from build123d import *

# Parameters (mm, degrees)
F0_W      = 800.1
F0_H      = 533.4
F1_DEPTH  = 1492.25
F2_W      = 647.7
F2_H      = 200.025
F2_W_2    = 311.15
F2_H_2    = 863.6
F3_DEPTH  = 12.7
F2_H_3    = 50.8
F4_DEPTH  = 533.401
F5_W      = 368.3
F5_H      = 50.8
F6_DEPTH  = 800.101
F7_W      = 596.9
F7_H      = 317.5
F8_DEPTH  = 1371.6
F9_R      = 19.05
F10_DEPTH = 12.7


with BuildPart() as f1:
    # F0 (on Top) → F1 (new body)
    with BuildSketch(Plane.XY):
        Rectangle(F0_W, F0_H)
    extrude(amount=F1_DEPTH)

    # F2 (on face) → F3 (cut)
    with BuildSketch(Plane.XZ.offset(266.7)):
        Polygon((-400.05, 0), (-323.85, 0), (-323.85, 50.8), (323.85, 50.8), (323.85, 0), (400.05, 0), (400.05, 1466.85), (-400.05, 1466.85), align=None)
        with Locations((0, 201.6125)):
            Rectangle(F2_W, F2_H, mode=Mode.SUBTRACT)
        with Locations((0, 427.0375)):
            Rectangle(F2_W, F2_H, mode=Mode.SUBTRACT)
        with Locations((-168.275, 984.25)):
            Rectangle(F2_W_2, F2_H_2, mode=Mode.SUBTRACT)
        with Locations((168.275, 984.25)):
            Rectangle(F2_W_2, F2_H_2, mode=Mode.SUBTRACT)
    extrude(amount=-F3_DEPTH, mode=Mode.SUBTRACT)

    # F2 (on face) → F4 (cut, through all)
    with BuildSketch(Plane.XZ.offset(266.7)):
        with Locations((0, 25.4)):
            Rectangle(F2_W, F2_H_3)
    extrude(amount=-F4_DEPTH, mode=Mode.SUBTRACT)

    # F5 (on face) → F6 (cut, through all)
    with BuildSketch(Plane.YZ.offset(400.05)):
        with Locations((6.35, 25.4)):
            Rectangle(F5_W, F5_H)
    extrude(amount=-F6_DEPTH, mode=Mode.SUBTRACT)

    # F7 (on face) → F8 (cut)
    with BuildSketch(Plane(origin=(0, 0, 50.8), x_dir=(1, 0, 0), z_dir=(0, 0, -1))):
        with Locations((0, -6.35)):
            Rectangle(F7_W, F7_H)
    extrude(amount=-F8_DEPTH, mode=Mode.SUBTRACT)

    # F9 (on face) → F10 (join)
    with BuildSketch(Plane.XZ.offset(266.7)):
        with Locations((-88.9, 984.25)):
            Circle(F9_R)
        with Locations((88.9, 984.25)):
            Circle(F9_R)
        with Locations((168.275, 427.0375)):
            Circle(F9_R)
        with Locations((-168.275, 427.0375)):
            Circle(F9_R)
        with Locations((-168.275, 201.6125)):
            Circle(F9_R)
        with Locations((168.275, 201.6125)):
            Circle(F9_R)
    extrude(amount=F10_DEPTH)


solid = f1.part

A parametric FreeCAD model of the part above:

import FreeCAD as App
import Part
import Sketcher
from FreeCAD import Vector
Q = App.Units.Quantity

doc = App.newDocument("Part")
params = doc.addObject("Spreadsheet::Sheet", "Params")
for row, (alias, value) in enumerate([
    ("sketch1_height", "21 in"),
    ("sketch1_width", "31.5 in"),
    ("pad1_length", "58.75 in"),
    ("sketch2_width", "3 in"),
    ("sketch2_height", "2 in"),
    ("sketch2_height2", "34 in"),
    ("sketch2_width2", "25.5 in"),
    ("sketch2_height3", "57.75 in"),
    ("pocket1_length", "0.5 in"),
    ("sketch3_height", "2 in"),
    ("sketch3_width", "25.5 in"),
    ("sketch4_height", "2 in"),
    ("sketch4_width", "14.5 in"),
    ("sketch5_width", "23.5 in"),
    ("sketch5_height", "12.5 in"),
    ("pocket4_length", "54 in"),
    ("sketch6_diameter", "1.5 in"),
    ("pad2_length", "0.5 in"),
], start=1):
    params.set(f"A{row}", alias)
    params.set(f"B{row}", "=" + value)
    params.setAlias(f"B{row}", alias)

body = doc.addObject("PartDesign::Body", "Body")

# Sketch on XY plane
sketch1 = body.newObject("Sketcher::SketchObject", "Sketch")
sketch1.AttachmentSupport = (doc.getObject("XY_Plane"), [""])
sketch1.MapMode = "FlatFace"
sketch1.addGeometry([
    Part.LineSegment(Vector(-400.05, 266.7, 0), Vector(-400.05, -266.7, 0)),
    Part.LineSegment(Vector(-400.05, -266.7, 0), Vector(400.05, -266.7, 0)),
    Part.LineSegment(Vector(400.05, -266.7, 0), Vector(400.05, 266.7, 0)),
    Part.LineSegment(Vector(400.05, 266.7, 0), Vector(-400.05, 266.7, 0)),
], False)
sketch1.addConstraint([
    Sketcher.Constraint("Coincident", 0, 2, 1, 1),
    Sketcher.Constraint("Coincident", 1, 2, 2, 1),
    Sketcher.Constraint("Coincident", 2, 2, 3, 1),
    Sketcher.Constraint("Coincident", 3, 2, 0, 1),
    Sketcher.Constraint("Vertical", 0),
    Sketcher.Constraint("Horizontal", 1),
    Sketcher.Constraint("Vertical", 2),
    Sketcher.Constraint("Horizontal", 3),
    Sketcher.Constraint("Symmetric", 0, 2, 2, 2, -1, 1),
    Sketcher.Constraint("DistanceY", 0, 2, 0, 1, Q("21 in")),
    Sketcher.Constraint("DistanceX", 1, 1, 1, 2, Q("31.5 in")),
])
sketch1.setExpression("Constraints[9]", "Params.sketch1_height")
sketch1.setExpression("Constraints[10]", "Params.sketch1_width")
pad1 = body.newObject("PartDesign::Pad", "Pad")
pad1.Profile = sketch1
pad1.setExpression("Length", "Params.pad1_length")

# Sketch on XZ plane
sketch2 = body.newObject("Sketcher::SketchObject", "Sketch001")
sketch2.AttachmentSupport = (doc.getObject("XZ_Plane"), [""])
sketch2.MapMode = "FlatFace"
sketch2.AttachmentOffset = App.Placement(Vector(0, 0, 10.5 * 25.4), App.Rotation())
sketch2.addGeometry([
    Part.LineSegment(Vector(-400.05, 0, 0), Vector(-323.85, 0, 0)),  # 0
    Part.LineSegment(Vector(-323.85, 0, 0), Vector(-323.85, 50.8, 0)),  # 1
    Part.LineSegment(Vector(-323.85, 50.8, 0), Vector(323.85, 50.8, 0)),  # 2
    Part.LineSegment(Vector(323.85, 50.8, 0), Vector(323.85, 0, 0)),  # 3
    Part.LineSegment(Vector(323.85, 0, 0), Vector(400.05, 0, 0)),  # 4
    Part.LineSegment(Vector(400.05, 0, 0), Vector(400.05, 1466.85, 0)),  # 5
    Part.LineSegment(Vector(400.05, 1466.85, 0), Vector(-400.05, 1466.85, 0)),  # 6
    Part.LineSegment(Vector(-400.05, 1466.85, 0), Vector(-400.05, 0, 0)),  # 7
    Part.LineSegment(Vector(323.85, 101.6, 0), Vector(-323.85, 101.6, 0)),  # 8
    Part.LineSegment(Vector(-323.85, 101.6, 0), Vector(-323.85, 301.625, 0)),  # 9
    Part.LineSegment(Vector(-323.85, 301.625, 0), Vector(323.85, 301.625, 0)),  # 10
    Part.LineSegment(Vector(323.85, 301.625, 0), Vector(323.85, 101.6, 0)),  # 11
    Part.LineSegment(Vector(323.85, 327.025, 0), Vector(-323.85, 327.025, 0)),  # 12
    Part.LineSegment(Vector(-323.85, 327.025, 0), Vector(-323.85, 527.05, 0)),  # 13
    Part.LineSegment(Vector(-323.85, 527.05, 0), Vector(323.85, 527.05, 0)),  # 14
    Part.LineSegment(Vector(323.85, 527.05, 0), Vector(323.85, 327.025, 0)),  # 15
    Part.LineSegment(Vector(-12.7, 552.45, 0), Vector(-323.85, 552.45, 0)),  # 16
    Part.LineSegment(Vector(-323.85, 552.45, 0), Vector(-323.85, 1416.05, 0)),  # 17
    Part.LineSegment(Vector(-323.85, 1416.05, 0), Vector(-12.7, 1416.05, 0)),  # 18
    Part.LineSegment(Vector(-12.7, 1416.05, 0), Vector(-12.7, 552.45, 0)),  # 19
    Part.LineSegment(Vector(323.85, 552.45, 0), Vector(12.7, 552.45, 0)),  # 20
    Part.LineSegment(Vector(12.7, 552.45, 0), Vector(12.7, 1416.05, 0)),  # 21
    Part.LineSegment(Vector(12.7, 1416.05, 0), Vector(323.85, 1416.05, 0)),  # 22
    Part.LineSegment(Vector(323.85, 1416.05, 0), Vector(323.85, 552.45, 0)),  # 23
], False)
sketch2.addConstraint([
    Sketcher.Constraint("Coincident", 0, 2, 1, 1),
    Sketcher.Constraint("Coincident", 1, 2, 2, 1),
    Sketcher.Constraint("Coincident", 2, 2, 3, 1),
    Sketcher.Constraint("Coincident", 3, 2, 4, 1),
    Sketcher.Constraint("Coincident", 4, 2, 5, 1),
    Sketcher.Constraint("Coincident", 5, 2, 6, 1),
    Sketcher.Constraint("Coincident", 6, 2, 7, 1),
    Sketcher.Constraint("Coincident", 7, 2, 0, 1),
    Sketcher.Constraint("Coincident", 8, 2, 9, 1),
    Sketcher.Constraint("Coincident", 9, 2, 10, 1),
    Sketcher.Constraint("Coincident", 10, 2, 11, 1),
    Sketcher.Constraint("Coincident", 11, 2, 8, 1),
    Sketcher.Constraint("Coincident", 12, 2, 13, 1),
    Sketcher.Constraint("Coincident", 13, 2, 14, 1),
    Sketcher.Constraint("Coincident", 14, 2, 15, 1),
    Sketcher.Constraint("Coincident", 15, 2, 12, 1),
    Sketcher.Constraint("Coincident", 16, 2, 17, 1),
    Sketcher.Constraint("Coincident", 17, 2, 18, 1),
    Sketcher.Constraint("Coincident", 18, 2, 19, 1),
    Sketcher.Constraint("Coincident", 19, 2, 16, 1),
    Sketcher.Constraint("Coincident", 20, 2, 21, 1),
    Sketcher.Constraint("Coincident", 21, 2, 22, 1),
    Sketcher.Constraint("Coincident", 22, 2, 23, 1),
    Sketcher.Constraint("Coincident", 23, 2, 20, 1),
    Sketcher.Constraint("Horizontal", 0),
    Sketcher.Constraint("Vertical", 1),
    Sketcher.Constraint("Horizontal", 2),
    Sketcher.Constraint("Vertical", 3),
    Sketcher.Constraint("Horizontal", 4),
    Sketcher.Constraint("Vertical", 5),
    Sketcher.Constraint("Horizontal", 6),
    Sketcher.Constraint("Vertical", 7),
    Sketcher.Constraint("Horizontal", 8),
    Sketcher.Constraint("Vertical", 9),
    Sketcher.Constraint("Horizontal", 10),
    Sketcher.Constraint("Vertical", 11),
    Sketcher.Constraint("Horizontal", 12),
    Sketcher.Constraint("Vertical", 13),
    Sketcher.Constraint("Horizontal", 14),
    Sketcher.Constraint("Vertical", 15),
    Sketcher.Constraint("Horizontal", 16),
    Sketcher.Constraint("Vertical", 17),
    Sketcher.Constraint("Horizontal", 18),
    Sketcher.Constraint("Vertical", 19),
    Sketcher.Constraint("Horizontal", 20),
    Sketcher.Constraint("Vertical", 21),
    Sketcher.Constraint("Horizontal", 22),
    Sketcher.Constraint("Vertical", 23),
    Sketcher.Constraint("Symmetric", 0, 2, 3, 2, -1, 1),
    Sketcher.Constraint("Symmetric", 4, 2, 7, 2, -2),
    Sketcher.Constraint("Symmetric", 19, 2, 20, 2, -2),
    Sketcher.Constraint("Symmetric", 17, 2, 22, 2, -2),
    Sketcher.Constraint("Vertical", 1, 2, 8, 2),
    Sketcher.Constraint("Vertical", 3, 2, 10, 2),
    Sketcher.Constraint("Vertical", 9, 2, 12, 2),
    Sketcher.Constraint("Vertical", 11, 2, 14, 2),
    Sketcher.Constraint("Vertical", 13, 2, 16, 2),
    Sketcher.Constraint("Equal", 11, 13),
    Sketcher.Constraint("DistanceX", 0, 1, 0, 2, Q("3 in")),
    Sketcher.Constraint("DistanceY", 1, 1, 1, 2, Q("2 in")),
    Sketcher.Constraint("DistanceY", 17, 1, 17, 2, Q("34 in")),
    Sketcher.Constraint("DistanceX", 2, 1, 2, 2, Q("25.5 in")),
    Sketcher.Constraint("DistanceY", -1, 1, 8, 2, Q("4 in")),
    Sketcher.Constraint("DistanceY", 9, 2, 12, 2, Q("1 in")),
    Sketcher.Constraint("DistanceY", 13, 2, 16, 2, Q("1 in")),
    Sketcher.Constraint("DistanceY", 17, 2, 6, 2, Q("2 in")),
    Sketcher.Constraint("DistanceX", 19, 2, 20, 2, Q("1 in")),
    Sketcher.Constraint("DistanceY", 5, 1, 5, 2, Q("57.75 in")),
])
sketch2.setExpression("Constraints[58]", "Params.sketch2_width")
sketch2.setExpression("Constraints[59]", "Params.sketch2_height")
sketch2.setExpression("Constraints[60]", "Params.sketch2_height2")
sketch2.setExpression("Constraints[61]", "Params.sketch2_width2")
sketch2.setExpression("Constraints[67]", "Params.sketch2_height3")
pocket1 = body.newObject("PartDesign::Pocket", "Pocket")
pocket1.Profile = sketch2
pocket1.setExpression("Length", "Params.pocket1_length")

# Sketch on XZ plane
sketch3 = body.newObject("Sketcher::SketchObject", "Sketch002")
sketch3.AttachmentSupport = (doc.getObject("XZ_Plane"), [""])
sketch3.MapMode = "FlatFace"
sketch3.AttachmentOffset = App.Placement(Vector(0, 0, 10.5 * 25.4), App.Rotation())
sketch3.addGeometry([
    Part.LineSegment(Vector(-323.85, 50.8, 0), Vector(-323.85, 0, 0)),
    Part.LineSegment(Vector(-323.85, 0, 0), Vector(323.85, 0, 0)),
    Part.LineSegment(Vector(323.85, 0, 0), Vector(323.85, 50.8, 0)),
    Part.LineSegment(Vector(323.85, 50.8, 0), Vector(-323.85, 50.8, 0)),
], False)
sketch3.addConstraint([
    Sketcher.Constraint("Coincident", 0, 2, 1, 1),
    Sketcher.Constraint("Coincident", 1, 2, 2, 1),
    Sketcher.Constraint("Coincident", 2, 2, 3, 1),
    Sketcher.Constraint("Coincident", 3, 2, 0, 1),
    Sketcher.Constraint("Vertical", 0),
    Sketcher.Constraint("Horizontal", 1),
    Sketcher.Constraint("Vertical", 2),
    Sketcher.Constraint("Horizontal", 3),
    Sketcher.Constraint("Symmetric", 0, 2, 1, 2, -1, 1),
    Sketcher.Constraint("DistanceY", 0, 2, 0, 1, Q("2 in")),
    Sketcher.Constraint("DistanceX", 1, 1, 1, 2, Q("25.5 in")),
])
sketch3.setExpression("Constraints[9]", "Params.sketch3_height")
sketch3.setExpression("Constraints[10]", "Params.sketch3_width")
pocket2 = body.newObject("PartDesign::Pocket", "Pocket001")
pocket2.Profile = sketch3
pocket2.Type = "ThroughAll"

# Sketch on YZ plane
sketch4 = body.newObject("Sketcher::SketchObject", "Sketch003")
sketch4.AttachmentSupport = (doc.getObject("YZ_Plane"), [""])
sketch4.MapMode = "FlatFace"
sketch4.AttachmentOffset = App.Placement(Vector(0, 0, 15.75 * 25.4), App.Rotation())
sketch4.addGeometry([
    Part.LineSegment(Vector(-177.8, 50.8, 0), Vector(-177.8, 0, 0)),
    Part.LineSegment(Vector(-177.8, 0, 0), Vector(190.5, 0, 0)),
    Part.LineSegment(Vector(190.5, 0, 0), Vector(190.5, 50.8, 0)),
    Part.LineSegment(Vector(190.5, 50.8, 0), Vector(-177.8, 50.8, 0)),
], False)
sketch4.addConstraint([
    Sketcher.Constraint("Coincident", 0, 2, 1, 1),
    Sketcher.Constraint("Coincident", 1, 2, 2, 1),
    Sketcher.Constraint("Coincident", 2, 2, 3, 1),
    Sketcher.Constraint("Coincident", 3, 2, 0, 1),
    Sketcher.Constraint("Vertical", 0),
    Sketcher.Constraint("Horizontal", 1),
    Sketcher.Constraint("Vertical", 2),
    Sketcher.Constraint("Horizontal", 3),
    Sketcher.Constraint("PointOnObject", 0, 2, -1),
    Sketcher.Constraint("DistanceY", 0, 2, 0, 1, Q("2 in")),
    Sketcher.Constraint("DistanceX", 1, 1, 1, 2, Q("14.5 in")),
    Sketcher.Constraint("DistanceX", 0, 2, -1, 1, Q("7 in")),
])
sketch4.setExpression("Constraints[9]", "Params.sketch4_height")
sketch4.setExpression("Constraints[10]", "Params.sketch4_width")
pocket3 = body.newObject("PartDesign::Pocket", "Pocket002")
pocket3.Profile = sketch4
pocket3.Type = "ThroughAll"

# Sketch on XY plane
sketch5 = body.newObject("Sketcher::SketchObject", "Sketch004")
sketch5.AttachmentSupport = (doc.getObject("XY_Plane"), [""])
sketch5.MapMode = "FlatFace"
sketch5.AttachmentOffset = App.Placement(Vector(0, 0, 2 * 25.4), App.Rotation())
sketch5.addGeometry([
    Part.LineSegment(Vector(-298.45, -152.4, 0), Vector(-298.45, 165.1, 0)),
    Part.LineSegment(Vector(-298.45, 165.1, 0), Vector(298.45, 165.1, 0)),
    Part.LineSegment(Vector(298.45, 165.1, 0), Vector(298.45, -152.4, 0)),
    Part.LineSegment(Vector(298.45, -152.4, 0), Vector(-298.45, -152.4, 0)),
], False)
sketch5.addConstraint([
    Sketcher.Constraint("Coincident", 0, 2, 1, 1),
    Sketcher.Constraint("Coincident", 1, 2, 2, 1),
    Sketcher.Constraint("Coincident", 2, 2, 3, 1),
    Sketcher.Constraint("Coincident", 3, 2, 0, 1),
    Sketcher.Constraint("Vertical", 0),
    Sketcher.Constraint("Horizontal", 1),
    Sketcher.Constraint("Vertical", 2),
    Sketcher.Constraint("Horizontal", 3),
    Sketcher.Constraint("DistanceX", 1, 1, 1, 2, Q("23.5 in")),
    Sketcher.Constraint("DistanceY", 0, 1, 0, 2, Q("12.5 in")),
    Sketcher.Constraint("DistanceY", 2, 2, -1, 1, Q("6 in")),
    Sketcher.Constraint("DistanceX", 0, 2, -1, 1, Q("11.75 in")),
])
sketch5.setExpression("Constraints[8]", "Params.sketch5_width")
sketch5.setExpression("Constraints[9]", "Params.sketch5_height")
pocket4 = body.newObject("PartDesign::Pocket", "Pocket003")
pocket4.Profile = sketch5
pocket4.setExpression("Length", "Params.pocket4_length")
pocket4.Reversed = True

# Sketch on XZ plane
sketch6 = body.newObject("Sketcher::SketchObject", "Sketch005")
sketch6.AttachmentSupport = (doc.getObject("XZ_Plane"), [""])
sketch6.MapMode = "FlatFace"
sketch6.AttachmentOffset = App.Placement(Vector(0, 0, 10.5 * 25.4), App.Rotation())
sketch6.addGeometry([
    Part.Circle(Vector(-88.9, 984.25, 0), Vector(0, 0, 1), 19.05),  # 0
    Part.Circle(Vector(88.9, 984.25, 0), Vector(0, 0, 1), 19.05),  # 1
    Part.Circle(Vector(168.275, 427.0375, 0), Vector(0, 0, 1), 19.05),  # 2
    Part.Circle(Vector(-168.275, 427.0375, 0), Vector(0, 0, 1), 19.05),  # 3
    Part.Circle(Vector(-168.275, 201.6125, 0), Vector(0, 0, 1), 19.05),  # 4
    Part.Circle(Vector(168.275, 201.6125, 0), Vector(0, 0, 1), 19.05),  # 5
], False)
sketch6.addConstraint([
    Sketcher.Constraint("Equal", 0, 1),
    Sketcher.Constraint("Equal", 1, 2),
    Sketcher.Constraint("Equal", 2, 3),
    Sketcher.Constraint("Equal", 3, 4),
    Sketcher.Constraint("Equal", 4, 5),
    Sketcher.Constraint("Symmetric", 0, 3, 1, 3, -2),
    Sketcher.Constraint("Symmetric", 2, 3, 3, 3, -2),
    Sketcher.Constraint("Symmetric", 4, 3, 5, 3, -2),
    Sketcher.Constraint("Vertical", 3, 3, 4, 3),
    Sketcher.Constraint("Diameter", 0, Q("1.5 in")),
    Sketcher.Constraint("DistanceX", 0, 3, 1, 3, Q("7 in")),
    Sketcher.Constraint("DistanceY", -1, 1, 0, 3, Q("38.75 in")),
    Sketcher.Constraint("DistanceX", 3, 3, 2, 3, Q("13.25 in")),
    Sketcher.Constraint("DistanceY", -1, 1, 2, 3, Q("16.8125 in")),
    Sketcher.Constraint("DistanceY", -1, 1, 4, 3, Q("7.9375 in")),
])
sketch6.setExpression("Constraints[9]", "Params.sketch6_diameter")
pad2 = body.newObject("PartDesign::Pad", "Pad001")
pad2.Profile = sketch6
pad2.setExpression("Length", "Params.pad2_length")

doc.recompute()
